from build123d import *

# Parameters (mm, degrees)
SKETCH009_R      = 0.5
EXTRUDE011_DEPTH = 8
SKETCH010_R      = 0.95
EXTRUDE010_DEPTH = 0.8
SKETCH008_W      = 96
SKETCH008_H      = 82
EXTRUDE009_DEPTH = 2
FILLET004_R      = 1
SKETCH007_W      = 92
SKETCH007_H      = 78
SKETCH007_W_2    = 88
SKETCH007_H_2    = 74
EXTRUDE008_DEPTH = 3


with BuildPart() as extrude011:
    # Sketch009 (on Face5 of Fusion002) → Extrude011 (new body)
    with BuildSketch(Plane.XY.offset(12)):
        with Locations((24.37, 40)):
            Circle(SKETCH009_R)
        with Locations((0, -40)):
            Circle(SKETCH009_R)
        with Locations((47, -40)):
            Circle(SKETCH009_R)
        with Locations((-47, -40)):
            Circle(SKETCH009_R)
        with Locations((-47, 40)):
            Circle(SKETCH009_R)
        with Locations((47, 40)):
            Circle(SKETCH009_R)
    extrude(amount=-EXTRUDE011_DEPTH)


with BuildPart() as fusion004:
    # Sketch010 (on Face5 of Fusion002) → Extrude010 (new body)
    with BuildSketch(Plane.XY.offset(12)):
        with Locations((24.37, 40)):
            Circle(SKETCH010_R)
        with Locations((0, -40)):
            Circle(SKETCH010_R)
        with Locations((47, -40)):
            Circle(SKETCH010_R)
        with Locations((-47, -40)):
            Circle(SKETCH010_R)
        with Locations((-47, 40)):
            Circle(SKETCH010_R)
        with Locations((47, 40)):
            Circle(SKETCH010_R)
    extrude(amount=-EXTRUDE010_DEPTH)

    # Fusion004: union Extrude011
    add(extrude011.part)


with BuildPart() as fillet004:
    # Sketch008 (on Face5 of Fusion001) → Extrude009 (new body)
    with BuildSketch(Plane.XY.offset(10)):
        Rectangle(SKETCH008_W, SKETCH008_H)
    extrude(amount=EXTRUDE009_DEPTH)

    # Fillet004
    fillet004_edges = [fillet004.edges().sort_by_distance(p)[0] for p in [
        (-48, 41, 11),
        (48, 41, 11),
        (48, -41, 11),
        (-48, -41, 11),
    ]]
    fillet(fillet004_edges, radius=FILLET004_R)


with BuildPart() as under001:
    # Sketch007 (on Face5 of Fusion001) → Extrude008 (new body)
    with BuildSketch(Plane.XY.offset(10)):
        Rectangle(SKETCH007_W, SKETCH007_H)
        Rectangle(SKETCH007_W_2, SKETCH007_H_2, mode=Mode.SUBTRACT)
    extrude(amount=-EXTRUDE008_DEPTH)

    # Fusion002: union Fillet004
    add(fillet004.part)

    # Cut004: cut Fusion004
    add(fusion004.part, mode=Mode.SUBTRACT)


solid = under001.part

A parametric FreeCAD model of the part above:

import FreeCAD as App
import Part
import Sketcher
from FreeCAD import Vector
Q = App.Units.Quantity


def edges_at(feature, points):
    """Names of the edges that pass closest to the given points."""
    edges = feature.Shape.Edges
    near = lambda p: min(range(len(edges)), key=lambda i: edges[i].distToShape(Part.Vertex(*p))[0])
    return sorted({f"Edge{near(p) + 1}" for p in points})


def add_polygon(sketch, points):
    """Adds a closed chain of lines whose ends are joined by coincident constraints."""
    first, n = sketch.GeometryCount, len(points)
    for a, b in zip(points, points[1:] + points[:1]):
        sketch.addGeometry(Part.LineSegment(App.Vector(*a, 0), App.Vector(*b, 0)), False)
    for i in range(n):
        sketch.addConstraint(Sketcher.Constraint("Coincident", first + i, 2, first + (i + 1) % n, 1))

doc = App.newDocument("Part")
body = doc.addObject("PartDesign::Body", "Body")
body.AllowCompound = True

# Sketch on XY plane
sketch1 = doc.addObject("Sketcher::SketchObject", "Sketch")
body.addObject(sketch1)
sketch1.AttachmentSupport = (doc.XY_Plane, [""])
sketch1.MapMode = "FlatFace"
sketch1.AttachmentOffset = App.Placement(Vector(0, 0, 12), App.Rotation())
sketch1.addGeometry(Part.Circle(Vector(24.37, 40, 0), Vector(0, 0, 1), 0.5), False)
sketch1.addGeometry(Part.Circle(Vector(0, -40, 0), Vector(0, 0, 1), 0.5), False)
sketch1.addGeometry(Part.Circle(Vector(47, -40, 0), Vector(0, 0, 1), 0.5), False)
sketch1.addGeometry(Part.Circle(Vector(-47, -40, 0), Vector(0, 0, 1), 0.5), False)
sketch1.addGeometry(Part.Circle(Vector(-47, 40, 0), Vector(0, 0, 1), 0.5), False)
sketch1.addGeometry(Part.Circle(Vector(47, 40, 0), Vector(0, 0, 1), 0.5), False)
sketch1.addConstraint(Sketcher.Constraint("Equal", 0, 1))
sketch1.addConstraint(Sketcher.Constraint("Equal", 1, 2))
sketch1.addConstraint(Sketcher.Constraint("Equal", 2, 3))
sketch1.addConstraint(Sketcher.Constraint("Equal", 3, 4))
sketch1.addConstraint(Sketcher.Constraint("Equal", 4, 5))
sketch1.addConstraint(Sketcher.Constraint("Symmetric", 2, 3, 4, 3, -1, 1))
sketch1.addConstraint(Sketcher.Constraint("Symmetric", 3, 3, 5, 3, -1, 1))
sketch1.addConstraint(Sketcher.Constraint("Symmetric", 2, 3, 3, 3, -2))
sketch1.addConstraint(Sketcher.Constraint("PointOnObject", 1, 3, -2))
sketch1.addConstraint(Sketcher.Constraint("Horizontal", 1, 3, 2, 3))
sketch1.addConstraint(Sketcher.Constraint("Horizontal", 0, 3, 4, 3))
sketch1.addConstraint(Sketcher.Constraint("Diameter", 0, Q("1 mm")))
sketch1.addConstraint(Sketcher.Constraint("DistanceY", -1, 1, 0, 3, Q("40 mm")))
sketch1.addConstraint(Sketcher.Constraint("DistanceX", -1, 1, 2, 3, Q("47 mm")))
sketch1.addConstraint(Sketcher.Constraint("DistanceX", -1, 1, 0, 3, Q("24.37 mm")))
pad1 = doc.addObject("PartDesign::Pad", "Pad")
body.addObject(pad1)
pad1.Profile = sketch1
pad1.Length = 8
pad1.Reversed = True
body2 = doc.addObject("PartDesign::Body", "Body001")
body2.AllowCompound = True

# Sketch on XY plane
sketch2 = doc.addObject("Sketcher::SketchObject", "Sketch001")
body2.addObject(sketch2)
sketch2.AttachmentSupport = (doc.getObject("XY_Plane001"), [""])
sketch2.MapMode = "FlatFace"
sketch2.AttachmentOffset = App.Placement(Vector(0, 0, 12), App.Rotation())
sketch2.addGeometry(Part.Circle(Vector(24.37, 40, 0), Vector(0, 0, 1), 0.95), False)
sketch2.addGeometry(Part.Circle(Vector(0, -40, 0), Vector(0, 0, 1), 0.95), False)
sketch2.addGeometry(Part.Circle(Vector(47, -40, 0), Vector(0, 0, 1), 0.95), False)
sketch2.addGeometry(Part.Circle(Vector(-47, -40, 0), Vector(0, 0, 1), 0.95), False)
sketch2.addGeometry(Part.Circle(Vector(-47, 40, 0), Vector(0, 0, 1), 0.95), False)
sketch2.addGeometry(Part.Circle(Vector(47, 40, 0), Vector(0, 0, 1), 0.95), False)
sketch2.addConstraint(Sketcher.Constraint("Equal", 0, 1))
sketch2.addConstraint(Sketcher.Constraint("Equal", 1, 2))
sketch2.addConstraint(Sketcher.Constraint("Equal", 2, 3))
sketch2.addConstraint(Sketcher.Constraint("Equal", 3, 4))
sketch2.addConstraint(Sketcher.Constraint("Equal", 4, 5))
sketch2.addConstraint(Sketcher.Constraint("Symmetric", 2, 3, 4, 3, -1, 1))
sketch2.addConstraint(Sketcher.Constraint("Symmetric", 3, 3, 5, 3, -1, 1))
sketch2.addConstraint(Sketcher.Constraint("Symmetric", 2, 3, 3, 3, -2))
sketch2.addConstraint(Sketcher.Constraint("PointOnObject", 1, 3, -2))
sketch2.addConstraint(Sketcher.Constraint("Horizontal", 1, 3, 2, 3))
sketch2.addConstraint(Sketcher.Constraint("Horizontal", 0, 3, 4, 3))
sketch2.addConstraint(Sketcher.Constraint("Diameter", 0, Q("1.9 mm")))
sketch2.addConstraint(Sketcher.Constraint("DistanceY", -1, 1, 0, 3, Q("40 mm")))
sketch2.addConstraint(Sketcher.Constraint("DistanceX", -1, 1, 2, 3, Q("47 mm")))
sketch2.addConstraint(Sketcher.Constraint("DistanceX", -1, 1, 0, 3, Q("24.37 mm")))
pad2 = doc.addObject("PartDesign::Pad", "Pad001")
body2.addObject(pad2)
pad2.Profile = sketch2
pad2.Length = 0.8
pad2.Reversed = True
doc.recompute()

boolean = doc.addObject("PartDesign::Boolean", "Boolean")
body2.addObject(boolean)
boolean.Type = "Fuse"
boolean.addObjects([body])
body3 = doc.addObject("PartDesign::Body", "Body002")

# Sketch on XY plane
sketch3 = doc.addObject("Sketcher::SketchObject", "Sketch002")
body3.addObject(sketch3)
sketch3.AttachmentSupport = (doc.getObject("XY_Plane002"), [""])
sketch3.MapMode = "FlatFace"
sketch3.AttachmentOffset = App.Placement(Vector(0, 0, 10), App.Rotation())
add_polygon(sketch3, [(-48, 41), (-48, -41), (48, -41), (48, 41)])  # lines 0-3
sketch3.addConstraint(Sketcher.Constraint("Vertical", 0))
sketch3.addConstraint(Sketcher.Constraint("Horizontal", 1))
sketch3.addConstraint(Sketcher.Constraint("Vertical", 2))
sketch3.addConstraint(Sketcher.Constraint("Horizontal", 3))
sketch3.addConstraint(Sketcher.Constraint("Symmetric", 0, 2, 2, 2, -1, 1))
sketch3.addConstraint(Sketcher.Constraint("DistanceX", 1, 1, 1, 2, Q("96 mm")))
sketch3.addConstraint(Sketcher.Constraint("DistanceY", 0, 2, 0, 1, Q("82 mm")))
pad3 = doc.addObject("PartDesign::Pad", "Pad002")
body3.addObject(pad3)
pad3.Profile = sketch3
pad3.Length = 2
doc.recompute()

fillet = doc.addObject("PartDesign::Fillet", "Fillet")
body3.addObject(fillet)
fillet.Base = (pad3, edges_at(pad3, [
    (-48, 41, 11),
    (48, 41, 11),
    (48, -41, 11),
    (-48, -41, 11),
]))
fillet.Radius = 1
body4 = doc.addObject("PartDesign::Body", "Body003")

# Sketch on XY plane
sketch4 = doc.addObject("Sketcher::SketchObject", "Sketch003")
body4.addObject(sketch4)
sketch4.AttachmentSupport = (doc.getObject("XY_Plane003"), [""])
sketch4.MapMode = "FlatFace"
sketch4.AttachmentOffset = App.Placement(Vector(0, 0, 10), App.Rotation())
add_polygon(sketch4, [(-46, 39), (-46, -39), (46, -39), (46, 39)])  # lines 0-3
add_polygon(sketch4, [(44, -37), (-44, -37), (-44, 37), (44, 37)])  # lines 4-7
sketch4.addConstraint(Sketcher.Constraint("Vertical", 0))
sketch4.addConstraint(Sketcher.Constraint("Horizontal", 1))
sketch4.addConstraint(Sketcher.Constraint("Vertical", 2))
sketch4.addConstraint(Sketcher.Constraint("Horizontal", 3))
sketch4.addConstraint(Sketcher.Constraint("Horizontal", 4))
sketch4.addConstraint(Sketcher.Constraint("Vertical", 5))
sketch4.addConstraint(Sketcher.Constraint("Horizontal", 6))
sketch4.addConstraint(Sketcher.Constraint("Vertical", 7))
sketch4.addConstraint(Sketcher.Constraint("Symmetric", 0, 2, 2, 2, -1, 1))
sketch4.addConstraint(Sketcher.Constraint("Symmetric", 4, 2, 6, 2, -1, 1))
sketch4.addConstraint(Sketcher.Constraint("DistanceX", 1, 1, 1, 2, Q("92 mm")))
sketch4.addConstraint(Sketcher.Constraint("DistanceX", 4, 2, 4, 1, Q("88 mm")))
sketch4.addConstraint(Sketcher.Constraint("DistanceY", 0, 2, 0, 1, Q("78 mm")))
sketch4.addConstraint(Sketcher.Constraint("DistanceY", 5, 1, 5, 2, Q("74 mm")))
pad4 = doc.addObject("PartDesign::Pad", "Pad003")
body4.addObject(pad4)
pad4.Profile = sketch4
pad4.Length = 3
pad4.Reversed = True
doc.recompute()

boolean2 = doc.addObject("PartDesign::Boolean", "Boolean001")
body4.addObject(boolean2)
boolean2.Type = "Fuse"
boolean2.addObjects([body3])
doc.recompute()

boolean3 = doc.addObject("PartDesign::Boolean", "Boolean002")
body4.addObject(boolean3)
boolean3.Type = "Cut"
boolean3.addObjects([body2])

doc.recompute()
